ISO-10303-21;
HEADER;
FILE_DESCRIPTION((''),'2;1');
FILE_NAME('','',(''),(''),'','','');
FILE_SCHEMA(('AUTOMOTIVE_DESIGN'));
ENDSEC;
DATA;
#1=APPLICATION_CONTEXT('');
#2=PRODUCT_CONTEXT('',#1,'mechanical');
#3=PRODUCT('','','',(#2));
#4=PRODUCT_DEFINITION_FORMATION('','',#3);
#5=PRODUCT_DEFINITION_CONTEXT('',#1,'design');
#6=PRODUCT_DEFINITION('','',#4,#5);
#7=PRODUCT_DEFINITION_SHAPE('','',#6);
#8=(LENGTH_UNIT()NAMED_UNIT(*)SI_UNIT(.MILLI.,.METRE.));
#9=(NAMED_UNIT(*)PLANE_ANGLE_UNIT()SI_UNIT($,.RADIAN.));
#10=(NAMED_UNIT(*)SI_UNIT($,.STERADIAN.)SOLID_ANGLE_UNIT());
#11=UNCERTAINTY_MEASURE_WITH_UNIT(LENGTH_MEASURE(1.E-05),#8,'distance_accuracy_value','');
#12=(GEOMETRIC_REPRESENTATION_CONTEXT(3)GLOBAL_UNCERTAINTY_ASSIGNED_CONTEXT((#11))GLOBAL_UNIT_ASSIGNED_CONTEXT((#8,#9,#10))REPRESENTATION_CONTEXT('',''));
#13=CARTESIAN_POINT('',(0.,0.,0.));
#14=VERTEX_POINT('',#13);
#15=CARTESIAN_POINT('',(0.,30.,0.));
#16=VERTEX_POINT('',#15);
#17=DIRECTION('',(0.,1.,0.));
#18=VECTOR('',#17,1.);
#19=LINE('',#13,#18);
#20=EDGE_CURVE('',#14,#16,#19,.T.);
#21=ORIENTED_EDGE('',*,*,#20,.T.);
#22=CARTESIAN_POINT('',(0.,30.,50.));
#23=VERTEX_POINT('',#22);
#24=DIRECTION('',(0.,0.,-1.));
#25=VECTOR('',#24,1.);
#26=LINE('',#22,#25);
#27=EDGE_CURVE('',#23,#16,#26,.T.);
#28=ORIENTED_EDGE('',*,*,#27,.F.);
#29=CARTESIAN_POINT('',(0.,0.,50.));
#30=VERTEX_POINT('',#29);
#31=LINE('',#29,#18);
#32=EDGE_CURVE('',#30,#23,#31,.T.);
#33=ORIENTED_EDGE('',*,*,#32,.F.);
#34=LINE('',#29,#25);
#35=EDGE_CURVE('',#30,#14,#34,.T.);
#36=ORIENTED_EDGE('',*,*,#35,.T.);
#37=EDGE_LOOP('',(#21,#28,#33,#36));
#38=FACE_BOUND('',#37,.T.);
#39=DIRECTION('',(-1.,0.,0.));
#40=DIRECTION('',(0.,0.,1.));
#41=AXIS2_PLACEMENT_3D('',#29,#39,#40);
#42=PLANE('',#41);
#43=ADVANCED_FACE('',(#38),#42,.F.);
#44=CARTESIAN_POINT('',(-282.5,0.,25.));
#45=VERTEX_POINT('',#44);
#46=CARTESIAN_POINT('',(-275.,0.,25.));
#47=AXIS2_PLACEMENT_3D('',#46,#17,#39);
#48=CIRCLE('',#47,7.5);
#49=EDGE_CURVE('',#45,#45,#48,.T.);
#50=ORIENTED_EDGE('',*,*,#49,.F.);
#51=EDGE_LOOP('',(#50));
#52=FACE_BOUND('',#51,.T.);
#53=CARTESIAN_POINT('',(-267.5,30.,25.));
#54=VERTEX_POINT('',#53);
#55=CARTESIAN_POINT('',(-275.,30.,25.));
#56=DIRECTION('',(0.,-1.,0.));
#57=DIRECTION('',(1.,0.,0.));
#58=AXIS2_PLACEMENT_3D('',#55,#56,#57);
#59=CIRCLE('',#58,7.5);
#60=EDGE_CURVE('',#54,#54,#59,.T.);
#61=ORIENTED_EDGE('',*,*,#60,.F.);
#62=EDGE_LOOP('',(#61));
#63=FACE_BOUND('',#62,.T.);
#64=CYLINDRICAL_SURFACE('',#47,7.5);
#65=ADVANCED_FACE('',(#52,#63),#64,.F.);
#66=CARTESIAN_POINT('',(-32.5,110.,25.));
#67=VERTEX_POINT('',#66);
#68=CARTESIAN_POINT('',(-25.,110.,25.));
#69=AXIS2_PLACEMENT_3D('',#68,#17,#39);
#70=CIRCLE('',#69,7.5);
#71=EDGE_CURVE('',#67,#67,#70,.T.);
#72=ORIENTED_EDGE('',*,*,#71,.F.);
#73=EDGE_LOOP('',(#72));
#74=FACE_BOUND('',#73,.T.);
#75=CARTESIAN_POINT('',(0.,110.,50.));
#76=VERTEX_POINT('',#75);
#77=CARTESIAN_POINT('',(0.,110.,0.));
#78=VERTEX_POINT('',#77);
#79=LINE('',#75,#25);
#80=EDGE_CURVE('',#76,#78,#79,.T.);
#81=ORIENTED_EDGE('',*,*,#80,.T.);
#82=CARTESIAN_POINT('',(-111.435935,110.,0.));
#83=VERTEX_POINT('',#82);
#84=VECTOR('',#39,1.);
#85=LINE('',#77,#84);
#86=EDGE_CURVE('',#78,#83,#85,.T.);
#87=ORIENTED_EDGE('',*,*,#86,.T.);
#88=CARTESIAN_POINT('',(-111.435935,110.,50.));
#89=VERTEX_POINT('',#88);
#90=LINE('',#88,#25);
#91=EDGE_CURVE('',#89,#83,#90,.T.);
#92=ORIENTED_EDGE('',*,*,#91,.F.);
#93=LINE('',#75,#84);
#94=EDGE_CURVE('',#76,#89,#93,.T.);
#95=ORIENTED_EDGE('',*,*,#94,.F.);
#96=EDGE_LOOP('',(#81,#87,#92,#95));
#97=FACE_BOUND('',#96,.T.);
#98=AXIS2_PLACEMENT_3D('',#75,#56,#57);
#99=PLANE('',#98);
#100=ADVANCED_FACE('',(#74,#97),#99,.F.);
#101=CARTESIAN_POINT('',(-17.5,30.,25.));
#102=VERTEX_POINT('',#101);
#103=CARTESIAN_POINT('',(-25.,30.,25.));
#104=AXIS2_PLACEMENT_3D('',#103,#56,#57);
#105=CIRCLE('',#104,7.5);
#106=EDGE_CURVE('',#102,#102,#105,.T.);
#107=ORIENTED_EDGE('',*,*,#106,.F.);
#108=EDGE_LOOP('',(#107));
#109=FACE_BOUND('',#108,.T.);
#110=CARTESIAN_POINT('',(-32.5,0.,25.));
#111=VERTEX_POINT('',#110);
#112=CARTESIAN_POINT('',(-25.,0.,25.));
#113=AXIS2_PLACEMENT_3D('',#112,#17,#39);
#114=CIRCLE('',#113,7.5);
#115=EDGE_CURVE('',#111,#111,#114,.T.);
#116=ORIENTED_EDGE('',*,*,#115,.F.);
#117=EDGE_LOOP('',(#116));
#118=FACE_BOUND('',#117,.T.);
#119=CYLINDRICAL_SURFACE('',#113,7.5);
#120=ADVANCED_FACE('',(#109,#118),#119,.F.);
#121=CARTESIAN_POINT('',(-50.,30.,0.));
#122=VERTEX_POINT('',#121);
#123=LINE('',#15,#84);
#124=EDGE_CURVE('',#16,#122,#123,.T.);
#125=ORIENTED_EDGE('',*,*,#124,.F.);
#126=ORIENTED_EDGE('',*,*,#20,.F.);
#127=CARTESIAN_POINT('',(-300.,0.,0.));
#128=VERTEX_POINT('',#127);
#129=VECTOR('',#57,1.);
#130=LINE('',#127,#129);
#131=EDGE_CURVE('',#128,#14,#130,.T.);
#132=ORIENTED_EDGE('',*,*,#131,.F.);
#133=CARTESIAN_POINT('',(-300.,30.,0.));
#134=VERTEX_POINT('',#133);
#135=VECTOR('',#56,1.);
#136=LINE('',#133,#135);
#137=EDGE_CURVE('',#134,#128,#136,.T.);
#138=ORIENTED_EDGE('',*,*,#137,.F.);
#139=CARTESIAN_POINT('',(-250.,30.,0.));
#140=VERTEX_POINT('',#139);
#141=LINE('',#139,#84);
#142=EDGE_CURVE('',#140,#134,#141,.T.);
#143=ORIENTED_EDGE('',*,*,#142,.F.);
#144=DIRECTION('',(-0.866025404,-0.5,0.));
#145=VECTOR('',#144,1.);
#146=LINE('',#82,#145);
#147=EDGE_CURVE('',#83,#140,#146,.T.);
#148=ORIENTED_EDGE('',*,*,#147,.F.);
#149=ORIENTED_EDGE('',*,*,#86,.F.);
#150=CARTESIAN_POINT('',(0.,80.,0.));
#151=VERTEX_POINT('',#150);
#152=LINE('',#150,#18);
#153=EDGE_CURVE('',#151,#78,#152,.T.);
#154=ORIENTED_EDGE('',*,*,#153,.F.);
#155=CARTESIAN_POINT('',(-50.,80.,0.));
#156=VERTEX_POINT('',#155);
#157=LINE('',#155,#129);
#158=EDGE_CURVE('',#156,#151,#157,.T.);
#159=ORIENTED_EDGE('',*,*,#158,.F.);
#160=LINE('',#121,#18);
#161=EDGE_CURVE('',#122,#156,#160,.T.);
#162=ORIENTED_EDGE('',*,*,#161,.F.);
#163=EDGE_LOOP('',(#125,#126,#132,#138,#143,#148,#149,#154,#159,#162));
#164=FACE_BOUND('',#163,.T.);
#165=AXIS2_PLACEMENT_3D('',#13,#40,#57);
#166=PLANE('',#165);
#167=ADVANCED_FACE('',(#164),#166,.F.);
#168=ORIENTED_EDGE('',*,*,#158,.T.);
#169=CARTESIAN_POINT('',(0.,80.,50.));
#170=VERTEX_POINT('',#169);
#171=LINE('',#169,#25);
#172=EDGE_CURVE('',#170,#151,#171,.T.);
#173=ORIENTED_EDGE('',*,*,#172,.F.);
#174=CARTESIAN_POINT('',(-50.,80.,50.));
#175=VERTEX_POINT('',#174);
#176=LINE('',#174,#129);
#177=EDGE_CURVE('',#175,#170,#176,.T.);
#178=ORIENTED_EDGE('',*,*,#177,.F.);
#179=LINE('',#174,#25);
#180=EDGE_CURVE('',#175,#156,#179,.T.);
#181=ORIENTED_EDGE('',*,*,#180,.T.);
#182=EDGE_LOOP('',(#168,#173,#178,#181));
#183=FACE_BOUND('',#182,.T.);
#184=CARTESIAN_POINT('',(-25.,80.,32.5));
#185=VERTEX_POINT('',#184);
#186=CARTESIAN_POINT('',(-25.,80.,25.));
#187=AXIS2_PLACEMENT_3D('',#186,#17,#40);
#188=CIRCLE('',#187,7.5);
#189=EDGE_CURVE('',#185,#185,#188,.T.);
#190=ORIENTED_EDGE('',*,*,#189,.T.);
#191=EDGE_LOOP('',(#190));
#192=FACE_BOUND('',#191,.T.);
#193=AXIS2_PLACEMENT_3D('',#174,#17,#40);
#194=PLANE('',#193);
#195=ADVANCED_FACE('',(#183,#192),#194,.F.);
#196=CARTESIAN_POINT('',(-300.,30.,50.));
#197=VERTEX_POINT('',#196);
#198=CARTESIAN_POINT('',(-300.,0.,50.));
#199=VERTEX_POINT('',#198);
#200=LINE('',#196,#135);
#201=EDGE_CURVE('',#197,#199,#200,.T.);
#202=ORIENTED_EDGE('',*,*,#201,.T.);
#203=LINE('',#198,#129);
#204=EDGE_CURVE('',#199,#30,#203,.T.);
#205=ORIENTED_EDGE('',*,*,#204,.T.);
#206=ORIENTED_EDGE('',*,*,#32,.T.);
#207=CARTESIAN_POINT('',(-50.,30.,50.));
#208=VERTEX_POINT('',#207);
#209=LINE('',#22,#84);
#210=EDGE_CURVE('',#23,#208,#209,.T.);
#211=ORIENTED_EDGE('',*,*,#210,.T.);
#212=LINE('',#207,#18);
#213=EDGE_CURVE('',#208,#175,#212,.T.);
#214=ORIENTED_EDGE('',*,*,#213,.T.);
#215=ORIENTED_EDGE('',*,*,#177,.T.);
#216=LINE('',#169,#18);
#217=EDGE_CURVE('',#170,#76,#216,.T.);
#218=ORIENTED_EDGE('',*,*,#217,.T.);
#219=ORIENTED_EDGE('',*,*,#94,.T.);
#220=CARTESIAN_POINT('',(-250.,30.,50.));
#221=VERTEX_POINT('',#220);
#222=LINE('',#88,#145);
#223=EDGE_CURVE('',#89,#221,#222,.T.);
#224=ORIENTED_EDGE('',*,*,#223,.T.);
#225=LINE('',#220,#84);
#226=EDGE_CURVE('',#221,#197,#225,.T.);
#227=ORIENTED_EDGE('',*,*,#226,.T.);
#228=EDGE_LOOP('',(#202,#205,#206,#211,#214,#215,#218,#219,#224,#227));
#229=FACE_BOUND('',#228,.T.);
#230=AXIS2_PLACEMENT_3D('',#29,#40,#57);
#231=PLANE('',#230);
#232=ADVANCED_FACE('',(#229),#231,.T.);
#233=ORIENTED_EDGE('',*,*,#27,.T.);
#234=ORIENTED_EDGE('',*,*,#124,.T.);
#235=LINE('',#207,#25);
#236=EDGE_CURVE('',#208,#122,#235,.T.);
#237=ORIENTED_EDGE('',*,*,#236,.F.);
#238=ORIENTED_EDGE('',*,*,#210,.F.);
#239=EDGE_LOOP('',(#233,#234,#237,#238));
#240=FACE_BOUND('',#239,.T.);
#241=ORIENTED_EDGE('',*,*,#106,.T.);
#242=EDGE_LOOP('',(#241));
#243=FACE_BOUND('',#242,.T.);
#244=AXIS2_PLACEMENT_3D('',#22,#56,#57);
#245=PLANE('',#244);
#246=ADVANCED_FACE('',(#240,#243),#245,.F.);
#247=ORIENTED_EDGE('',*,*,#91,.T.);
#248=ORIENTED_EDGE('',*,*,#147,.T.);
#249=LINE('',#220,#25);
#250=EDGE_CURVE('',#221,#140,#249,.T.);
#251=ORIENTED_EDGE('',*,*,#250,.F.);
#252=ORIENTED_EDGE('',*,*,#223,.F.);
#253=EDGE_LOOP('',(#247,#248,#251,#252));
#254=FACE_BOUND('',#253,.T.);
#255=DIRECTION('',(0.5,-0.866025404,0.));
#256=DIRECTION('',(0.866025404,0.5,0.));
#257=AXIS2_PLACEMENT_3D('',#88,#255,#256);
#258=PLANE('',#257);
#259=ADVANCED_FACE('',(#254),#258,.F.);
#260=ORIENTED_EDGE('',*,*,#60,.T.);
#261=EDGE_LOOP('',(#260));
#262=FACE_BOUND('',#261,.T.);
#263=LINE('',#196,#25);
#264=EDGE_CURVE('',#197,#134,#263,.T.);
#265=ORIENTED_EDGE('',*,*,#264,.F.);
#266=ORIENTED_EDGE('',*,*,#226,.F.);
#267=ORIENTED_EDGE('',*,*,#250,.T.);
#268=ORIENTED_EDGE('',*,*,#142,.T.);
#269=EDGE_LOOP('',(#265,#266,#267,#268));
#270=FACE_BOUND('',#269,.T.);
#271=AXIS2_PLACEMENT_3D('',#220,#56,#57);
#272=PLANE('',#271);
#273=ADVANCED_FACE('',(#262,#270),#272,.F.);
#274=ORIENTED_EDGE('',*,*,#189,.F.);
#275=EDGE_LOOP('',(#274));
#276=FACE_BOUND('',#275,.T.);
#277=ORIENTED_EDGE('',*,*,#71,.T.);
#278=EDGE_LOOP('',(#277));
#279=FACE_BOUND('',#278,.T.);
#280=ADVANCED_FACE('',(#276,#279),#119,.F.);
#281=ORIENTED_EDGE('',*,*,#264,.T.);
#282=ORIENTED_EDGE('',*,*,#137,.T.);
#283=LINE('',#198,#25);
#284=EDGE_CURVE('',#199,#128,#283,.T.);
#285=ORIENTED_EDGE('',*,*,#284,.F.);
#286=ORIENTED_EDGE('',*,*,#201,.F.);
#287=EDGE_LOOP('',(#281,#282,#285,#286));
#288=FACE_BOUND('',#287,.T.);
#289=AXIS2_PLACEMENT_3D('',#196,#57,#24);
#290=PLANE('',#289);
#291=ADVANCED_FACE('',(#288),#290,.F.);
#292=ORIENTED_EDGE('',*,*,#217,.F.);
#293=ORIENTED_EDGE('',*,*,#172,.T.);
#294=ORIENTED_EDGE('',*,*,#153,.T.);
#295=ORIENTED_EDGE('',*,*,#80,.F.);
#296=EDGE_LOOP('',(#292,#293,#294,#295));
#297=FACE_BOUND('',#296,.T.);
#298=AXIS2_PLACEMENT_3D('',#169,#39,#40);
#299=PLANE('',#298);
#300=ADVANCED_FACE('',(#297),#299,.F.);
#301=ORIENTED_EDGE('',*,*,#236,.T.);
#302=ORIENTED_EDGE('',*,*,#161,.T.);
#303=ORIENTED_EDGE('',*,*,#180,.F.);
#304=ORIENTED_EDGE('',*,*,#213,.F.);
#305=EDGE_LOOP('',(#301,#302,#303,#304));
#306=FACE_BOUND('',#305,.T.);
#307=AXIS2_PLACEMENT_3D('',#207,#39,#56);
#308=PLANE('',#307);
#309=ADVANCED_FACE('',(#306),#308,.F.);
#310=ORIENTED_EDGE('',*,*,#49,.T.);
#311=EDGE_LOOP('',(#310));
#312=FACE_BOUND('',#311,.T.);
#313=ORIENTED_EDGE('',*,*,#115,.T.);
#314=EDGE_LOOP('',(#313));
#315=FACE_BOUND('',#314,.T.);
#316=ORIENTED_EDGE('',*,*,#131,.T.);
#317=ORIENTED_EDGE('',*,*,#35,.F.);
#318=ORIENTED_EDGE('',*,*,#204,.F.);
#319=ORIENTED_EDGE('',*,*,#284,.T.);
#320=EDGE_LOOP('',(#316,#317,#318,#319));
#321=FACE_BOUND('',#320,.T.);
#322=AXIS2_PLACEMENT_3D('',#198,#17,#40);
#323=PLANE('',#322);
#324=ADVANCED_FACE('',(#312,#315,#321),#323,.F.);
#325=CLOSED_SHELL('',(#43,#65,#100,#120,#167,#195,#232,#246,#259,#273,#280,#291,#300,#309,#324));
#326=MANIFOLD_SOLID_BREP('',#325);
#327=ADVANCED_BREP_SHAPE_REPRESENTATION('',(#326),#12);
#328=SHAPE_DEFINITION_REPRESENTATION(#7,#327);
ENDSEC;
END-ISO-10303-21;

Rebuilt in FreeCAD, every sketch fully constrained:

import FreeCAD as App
import Part
import Sketcher
from FreeCAD import Vector
Q = App.Units.Quantity


def add_polygon(sketch, points):
    """Adds a closed chain of lines whose ends are joined by coincident constraints."""
    first, n = sketch.GeometryCount, len(points)
    for a, b in zip(points, points[1:] + points[:1]):
        sketch.addGeometry(Part.LineSegment(App.Vector(*a, 0), App.Vector(*b, 0)), False)
    for i in range(n):
        sketch.addConstraint(Sketcher.Constraint("Coincident", first + i, 2, first + (i + 1) % n, 1))

doc = App.newDocument("Part")
params = doc.addObject("Spreadsheet::Sheet", "Params")
for row, (alias, value) in enumerate([
    ("sketch1_width", "300 mm"),
    ("sketch1_width2", "50 mm"),
    ("sketch1_height", "30 mm"),
    ("pad1_length", "50 mm"),
    ("sketch2_diameter", "15 mm"),
], start=1):
    params.set(f"A{row}", alias)
    params.set(f"B{row}", "=" + value)
    params.setAlias(f"B{row}", alias)

body = doc.addObject("PartDesign::Body", "Body")

# Sketch on XY plane
sketch1 = body.newObject("Sketcher::SketchObject", "Sketch")
sketch1.AttachmentSupport = (doc.getObject("XY_Plane"), [""])
sketch1.MapMode = "FlatFace"
add_polygon(sketch1, [(-300, 0), (0, 0), (0, 30), (-50, 30), (-50, 80), (0, 80), (0, 110), (-111, 110), (-250, 30), (-300, 30)])  # lines 0-9
sketch1.addConstraint([
    Sketcher.Constraint("Horizontal", 0),
    Sketcher.Constraint("Vertical", 1),
    Sketcher.Constraint("Horizontal", 2),
    Sketcher.Constraint("Vertical", 3),
    Sketcher.Constraint("Horizontal", 4),
    Sketcher.Constraint("Vertical", 5),
    Sketcher.Constraint("Horizontal", 6),
    Sketcher.Constraint("Horizontal", 8),
    Sketcher.Constraint("Vertical", 9),
    Sketcher.Constraint("Coincident", 0, 2, -1, 1),
    Sketcher.Constraint("PointOnObject", 4, 2, -2),
    Sketcher.Constraint("Horizontal", 2, 2, 7, 2),
    Sketcher.Constraint("Equal", 4, 8),
    Sketcher.Constraint("Equal", 8, 3),
    Sketcher.Constraint("Equal", 1, 5),
    Sketcher.Constraint("DistanceX", 0, 1, 0, 2, Q("300 mm")),
    Sketcher.Constraint("DistanceX", 2, 2, 2, 1, Q("50 mm")),
    Sketcher.Constraint("DistanceY", 1, 1, 1, 2, Q("30 mm")),
    Sketcher.Constraint("Angle", 7, Q("-150 deg")),
])
sketch1.setExpression("Constraints[25]", "Params.sketch1_width")
sketch1.setExpression("Constraints[26]", "Params.sketch1_width2")
sketch1.setExpression("Constraints[27]", "Params.sketch1_height")
pad1 = body.newObject("PartDesign::Pad", "Pad")
pad1.Profile = sketch1
pad1.setExpression("Length", "Params.pad1_length")

# Sketch on XZ plane
sketch2 = body.newObject("Sketcher::SketchObject", "Sketch001")
sketch2.AttachmentSupport = (doc.getObject("XZ_Plane"), [""])
sketch2.MapMode = "FlatFace"
sketch2.AttachmentOffset = App.Placement(Vector(0, 0, -30), App.Rotation())
sketch2.addGeometry([
    Part.Circle(Vector(-275, 25, 0), Vector(0, 0, 1), 8),
    Part.Circle(Vector(-25, 25, 0), Vector(0, 0, 1), 8),
], False)
sketch2.addConstraint([
    Sketcher.Constraint("Equal", 0, 1),
    Sketcher.Constraint("Horizontal", 0, 3, 1, 3),
    Sketcher.Constraint("Diameter", 0, Q("15 mm")),
    Sketcher.Constraint("DistanceX", 0, 3, -1, 1, Q("275 mm")),
    Sketcher.Constraint("DistanceY", -1, 1, 0, 3, Q("25 mm")),
    Sketcher.Constraint("DistanceX", 1, 3, -1, 1, Q("25 mm")),
])
sketch2.setExpression("Constraints[2]", "Params.sketch2_diameter")
pocket1 = body.newObject("PartDesign::Pocket", "Pocket")
pocket1.Profile = sketch2
pocket1.Type = "ThroughAll"
pocket1.Midplane = True

doc.recompute()
